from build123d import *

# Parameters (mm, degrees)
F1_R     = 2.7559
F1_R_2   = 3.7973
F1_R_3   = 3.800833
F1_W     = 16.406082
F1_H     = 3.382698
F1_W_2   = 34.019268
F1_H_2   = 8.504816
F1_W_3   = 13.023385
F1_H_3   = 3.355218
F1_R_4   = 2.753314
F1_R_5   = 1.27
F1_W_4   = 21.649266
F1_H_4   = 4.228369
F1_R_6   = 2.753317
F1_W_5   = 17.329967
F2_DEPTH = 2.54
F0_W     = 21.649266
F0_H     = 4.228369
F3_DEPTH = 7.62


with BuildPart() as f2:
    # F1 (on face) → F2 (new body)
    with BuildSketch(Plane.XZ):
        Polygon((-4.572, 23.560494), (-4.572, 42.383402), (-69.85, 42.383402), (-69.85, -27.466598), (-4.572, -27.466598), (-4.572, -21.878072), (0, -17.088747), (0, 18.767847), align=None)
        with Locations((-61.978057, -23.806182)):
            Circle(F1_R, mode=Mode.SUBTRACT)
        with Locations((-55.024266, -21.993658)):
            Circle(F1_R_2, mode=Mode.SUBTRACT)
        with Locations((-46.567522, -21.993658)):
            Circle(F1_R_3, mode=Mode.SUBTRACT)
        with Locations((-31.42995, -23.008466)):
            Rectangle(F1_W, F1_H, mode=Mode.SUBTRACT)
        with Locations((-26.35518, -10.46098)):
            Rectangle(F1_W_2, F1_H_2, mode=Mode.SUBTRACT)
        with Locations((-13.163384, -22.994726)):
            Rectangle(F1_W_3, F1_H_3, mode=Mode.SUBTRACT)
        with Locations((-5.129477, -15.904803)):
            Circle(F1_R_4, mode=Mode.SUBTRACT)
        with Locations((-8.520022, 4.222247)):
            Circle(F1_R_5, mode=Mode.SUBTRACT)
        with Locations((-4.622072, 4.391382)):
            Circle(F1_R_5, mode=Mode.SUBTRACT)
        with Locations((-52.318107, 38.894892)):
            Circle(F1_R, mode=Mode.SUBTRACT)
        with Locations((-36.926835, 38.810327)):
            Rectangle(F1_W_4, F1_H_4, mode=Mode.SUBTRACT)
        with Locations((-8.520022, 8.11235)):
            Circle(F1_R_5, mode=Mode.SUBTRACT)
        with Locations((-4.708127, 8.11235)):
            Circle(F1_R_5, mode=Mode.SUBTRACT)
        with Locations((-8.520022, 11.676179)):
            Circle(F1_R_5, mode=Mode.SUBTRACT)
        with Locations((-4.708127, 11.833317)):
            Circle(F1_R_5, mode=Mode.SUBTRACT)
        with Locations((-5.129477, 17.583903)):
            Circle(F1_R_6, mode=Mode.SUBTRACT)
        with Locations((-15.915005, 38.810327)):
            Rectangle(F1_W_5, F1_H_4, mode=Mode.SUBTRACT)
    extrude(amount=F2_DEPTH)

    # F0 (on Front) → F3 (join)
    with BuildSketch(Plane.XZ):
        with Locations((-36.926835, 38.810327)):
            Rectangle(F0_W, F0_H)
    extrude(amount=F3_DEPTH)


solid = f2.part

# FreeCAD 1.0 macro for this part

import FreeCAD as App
import Part
import Sketcher
from FreeCAD import Vector
Q = App.Units.Quantity

doc = App.newDocument("Part")
params = doc.addObject("Spreadsheet::Sheet", "Params")
for row, (alias, value) in enumerate([
    ("sketch1_diameter", "0.1 in"),
    ("sketch1_diameter2", "0.217 in"),
    ("sketch1_diameter3", "0.299 in"),
    ("sketch1_width", "2.57 in"),
    ("sketch1_height", "2.75 in"),
    ("pad1_length", "0.1 in"),
    ("pad2_length", "0.3 in"),
], start=1):
    params.set(f"A{row}", alias)
    params.set(f"B{row}", "=" + value)
    params.setAlias(f"B{row}", alias)

body = doc.addObject("PartDesign::Body", "Body")

sketch1 = body.newObject("Sketcher::SketchObject", "Sketch")
sketch1.AttachmentSupport = (doc.getObject("XZ_Plane"), [""])
sketch1.MapMode = "FlatFace"
sketch1.addGeometry(Part.LineSegment(Vector(-4.6, 23.6, 0), Vector(-4.6, 42.4, 0)), False)
sketch1.addGeometry(Part.LineSegment(Vector(-4.6, 42.4, 0), Vector(-69.8, 42.4, 0)), False)
sketch1.addGeometry(Part.LineSegment(Vector(-69.8, 42.4, 0), Vector(-69.8, -27.5, 0)), False)
sketch1.addGeometry(Part.LineSegment(Vector(-69.8, -27.5, 0), Vector(-4.6, -27.5, 0)), False)
sketch1.addGeometry(Part.LineSegment(Vector(-4.6, -27.5, 0), Vector(-4.6, -21.9, 0)), False)
sketch1.addGeometry(Part.LineSegment(Vector(-4.6, -21.9, 0), Vector(0, -17.1, 0)), False)
sketch1.addGeometry(Part.LineSegment(Vector(0, -17.1, 0), Vector(0, 18.8, 0)), False)
sketch1.addGeometry(Part.LineSegment(Vector(0, 18.8, 0), Vector(-4.6, 23.6, 0)), False)
sketch1.addGeometry(Part.Circle(Vector(-62, -23.8, 0), Vector(0, 0, 1), 2.8), False)
sketch1.addGeometry(Part.Circle(Vector(-55, -22, 0), Vector(0, 0, 1), 3.8), False)
sketch1.addGeometry(Part.Circle(Vector(-46.6, -22, 0), Vector(0, 0, 1), 3.8), False)
sketch1.addGeometry(Part.LineSegment(Vector(-23.2, -24.7, 0), Vector(-39.6, -24.7, 0)), False)
sketch1.addGeometry(Part.LineSegment(Vector(-39.6, -24.7, 0), Vector(-39.6, -21.3, 0)), False)
sketch1.addGeometry(Part.LineSegment(Vector(-39.6, -21.3, 0), Vector(-23.2, -21.3, 0)), False)
sketch1.addGeometry(Part.LineSegment(Vector(-23.2, -21.3, 0), Vector(-23.2, -24.7, 0)), False)
sketch1.addGeometry(Part.LineSegment(Vector(-9.3, -14.7, 0), Vector(-43.4, -14.7, 0)), False)
sketch1.addGeometry(Part.LineSegment(Vector(-43.4, -14.7, 0), Vector(-43.4, -6.2, 0)), False)
sketch1.addGeometry(Part.LineSegment(Vector(-43.4, -6.2, 0), Vector(-9.3, -6.2, 0)), False)
sketch1.addGeometry(Part.LineSegment(Vector(-9.3, -6.2, 0), Vector(-9.3, -14.7, 0)), False)
sketch1.addGeometry(Part.LineSegment(Vector(-6.7, -24.7, 0), Vector(-19.7, -24.7, 0)), False)
sketch1.addGeometry(Part.LineSegment(Vector(-19.7, -24.7, 0), Vector(-19.7, -21.3, 0)), False)
sketch1.addGeometry(Part.LineSegment(Vector(-19.7, -21.3, 0), Vector(-6.7, -21.3, 0)), False)
sketch1.addGeometry(Part.LineSegment(Vector(-6.7, -21.3, 0), Vector(-6.7, -24.7, 0)), False)
sketch1.addGeometry(Part.Circle(Vector(-5.1, -15.9, 0), Vector(0, 0, 1), 2.8), False)
sketch1.addGeometry(Part.Circle(Vector(-8.5, 4.2, 0), Vector(0, 0, 1), 1.3), False)
sketch1.addGeometry(Part.Circle(Vector(-4.6, 4.4, 0), Vector(0, 0, 1), 1.3), False)
sketch1.addGeometry(Part.Circle(Vector(-52.3, 38.9, 0), Vector(0, 0, 1), 2.8), False)
sketch1.addGeometry(Part.LineSegment(Vector(-26.1, 36.7, 0), Vector(-47.8, 36.7, 0)), False)
sketch1.addGeometry(Part.LineSegment(Vector(-47.8, 36.7, 0), Vector(-47.8, 40.9, 0)), False)
sketch1.addGeometry(Part.LineSegment(Vector(-47.8, 40.9, 0), Vector(-26.1, 40.9, 0)), False)
sketch1.addGeometry(Part.LineSegment(Vector(-26.1, 40.9, 0), Vector(-26.1, 36.7, 0)), False)
sketch1.addGeometry(Part.Circle(Vector(-8.5, 8.1, 0), Vector(0, 0, 1), 1.3), False)
sketch1.addGeometry(Part.Circle(Vector(-8.5, 11.7, 0), Vector(0, 0, 1), 1.3), False)
sketch1.addGeometry(Part.Circle(Vector(-4.7, 8.1, 0), Vector(0, 0, 1), 1.3), False)
sketch1.addGeometry(Part.Circle(Vector(-4.7, 11.8, 0), Vector(0, 0, 1), 1.3), False)
sketch1.addGeometry(Part.Circle(Vector(-5.1, 17.6, 0), Vector(0, 0, 1), 2.8), False)
sketch1.addGeometry(Part.LineSegment(Vector(-7.3, 36.7, 0), Vector(-24.6, 36.7, 0)), False)
sketch1.addGeometry(Part.LineSegment(Vector(-24.6, 36.7, 0), Vector(-24.6, 40.9, 0)), False)
sketch1.addGeometry(Part.LineSegment(Vector(-24.6, 40.9, 0), Vector(-7.3, 40.9, 0)), False)
sketch1.addGeometry(Part.LineSegment(Vector(-7.3, 40.9, 0), Vector(-7.3, 36.7, 0)), False)
sketch1.addConstraint(Sketcher.Constraint("Coincident", 0, 2, 1, 1))
sketch1.addConstraint(Sketcher.Constraint("Coincident", 1, 2, 2, 1))
sketch1.addConstraint(Sketcher.Constraint("Coincident", 2, 2, 3, 1))
sketch1.addConstraint(Sketcher.Constraint("Coincident", 3, 2, 4, 1))
sketch1.addConstraint(Sketcher.Constraint("Coincident", 4, 2, 5, 1))
sketch1.addConstraint(Sketcher.Constraint("Coincident", 5, 2, 6, 1))
sketch1.addConstraint(Sketcher.Constraint("Coincident", 6, 2, 7, 1))
sketch1.addConstraint(Sketcher.Constraint("Coincident", 7, 2, 0, 1))
sketch1.addConstraint(Sketcher.Constraint("Coincident", 11, 2, 12, 1))
sketch1.addConstraint(Sketcher.Constraint("Coincident", 12, 2, 13, 1))
sketch1.addConstraint(Sketcher.Constraint("Coincident", 13, 2, 14, 1))
sketch1.addConstraint(Sketcher.Constraint("Coincident", 14, 2, 11, 1))
sketch1.addConstraint(Sketcher.Constraint("Coincident", 15, 2, 16, 1))
sketch1.addConstraint(Sketcher.Constraint("Coincident", 16, 2, 17, 1))
sketch1.addConstraint(Sketcher.Constraint("Coincident", 17, 2, 18, 1))
sketch1.addConstraint(Sketcher.Constraint("Coincident", 18, 2, 15, 1))
sketch1.addConstraint(Sketcher.Constraint("Coincident", 19, 2, 20, 1))
sketch1.addConstraint(Sketcher.Constraint("Coincident", 20, 2, 21, 1))
sketch1.addConstraint(Sketcher.Constraint("Coincident", 21, 2, 22, 1))
sketch1.addConstraint(Sketcher.Constraint("Coincident", 22, 2, 19, 1))
sketch1.addConstraint(Sketcher.Constraint("Coincident", 27, 2, 28, 1))
sketch1.addConstraint(Sketcher.Constraint("Coincident", 28, 2, 29, 1))
sketch1.addConstraint(Sketcher.Constraint("Coincident", 29, 2, 30, 1))
sketch1.addConstraint(Sketcher.Constraint("Coincident", 30, 2, 27, 1))
sketch1.addConstraint(Sketcher.Constraint("Coincident", 36, 2, 37, 1))
sketch1.addConstraint(Sketcher.Constraint("Coincident", 37, 2, 38, 1))
sketch1.addConstraint(Sketcher.Constraint("Coincident", 38, 2, 39, 1))
sketch1.addConstraint(Sketcher.Constraint("Coincident", 39, 2, 36, 1))
sketch1.addConstraint(Sketcher.Constraint("Vertical", 0))
sketch1.addConstraint(Sketcher.Constraint("Horizontal", 1))
sketch1.addConstraint(Sketcher.Constraint("Vertical", 2))
sketch1.addConstraint(Sketcher.Constraint("Horizontal", 3))
sketch1.addConstraint(Sketcher.Constraint("Vertical", 4))
sketch1.addConstraint(Sketcher.Constraint("Vertical", 6))
sketch1.addConstraint(Sketcher.Constraint("Horizontal", 11))
sketch1.addConstraint(Sketcher.Constraint("Vertical", 12))
sketch1.addConstraint(Sketcher.Constraint("Horizontal", 13))
sketch1.addConstraint(Sketcher.Constraint("Vertical", 14))
sketch1.addConstraint(Sketcher.Constraint("Horizontal", 15))
sketch1.addConstraint(Sketcher.Constraint("Vertical", 16))
sketch1.addConstraint(Sketcher.Constraint("Horizontal", 17))
sketch1.addConstraint(Sketcher.Constraint("Vertical", 18))
sketch1.addConstraint(Sketcher.Constraint("Horizontal", 19))
sketch1.addConstraint(Sketcher.Constraint("Vertical", 20))
sketch1.addConstraint(Sketcher.Constraint("Horizontal", 21))
sketch1.addConstraint(Sketcher.Constraint("Vertical", 22))
sketch1.addConstraint(Sketcher.Constraint("Horizontal", 27))
sketch1.addConstraint(Sketcher.Constraint("Vertical", 28))
sketch1.addConstraint(Sketcher.Constraint("Horizontal", 29))
sketch1.addConstraint(Sketcher.Constraint("Vertical", 30))
sketch1.addConstraint(Sketcher.Constraint("Horizontal", 36))
sketch1.addConstraint(Sketcher.Constraint("Vertical", 37))
sketch1.addConstraint(Sketcher.Constraint("Horizontal", 38))
sketch1.addConstraint(Sketcher.Constraint("Vertical", 39))
sketch1.addConstraint(Sketcher.Constraint("Equal", 24, 25))
sketch1.addConstraint(Sketcher.Constraint("Equal", 8, 26))
sketch1.addConstraint(Sketcher.Constraint("Equal", 25, 31))
sketch1.addConstraint(Sketcher.Constraint("Equal", 31, 32))
sketch1.addConstraint(Sketcher.Constraint("Equal", 32, 33))
sketch1.addConstraint(Sketcher.Constraint("Equal", 33, 34))
sketch1.addConstraint(Sketcher.Constraint("PointOnObject", 5, 2, -2))
sketch1.addConstraint(Sketcher.Constraint("Horizontal", 9, 3, 10, 3))
sketch1.addConstraint(Sketcher.Constraint("Horizontal", 31, 3, 33, 3))
sketch1.addConstraint(Sketcher.Constraint("Horizontal", 13, 2, 20, 2))
sketch1.addConstraint(Sketcher.Constraint("Horizontal", 30, 2, 36, 2))
sketch1.addConstraint(Sketcher.Constraint("Horizontal", 29, 2, 37, 2))
sketch1.addConstraint(Sketcher.Constraint("Vertical", 24, 3, 31, 3))
sketch1.addConstraint(Sketcher.Constraint("Vertical", 31, 3, 32, 3))
sketch1.addConstraint(Sketcher.Constraint("Vertical", 33, 3, 34, 3))
sketch1.addConstraint(Sketcher.Constraint("Vertical", 23, 3, 35, 3))
sketch1.addConstraint(Sketcher.Constraint("Vertical", 0, 2, 3, 2))
sketch1.addConstraint(Sketcher.Constraint("Diameter", 24, Q("0.1 in")))
sketch1.addConstraint(Sketcher.Constraint("Diameter", 8, Q("0.217 in")))
sketch1.addConstraint(Sketcher.Constraint("Diameter", 9, Q("0.299 in")))
sketch1.addConstraint(Sketcher.Constraint("DistanceX", 1, 2, 1, 1, Q("2.57 in")))
sketch1.addConstraint(Sketcher.Constraint("DistanceY", 2, 2, 2, 1, Q("2.75 in")))
sketch1.addConstraint(Sketcher.Constraint("DistanceX", 0, 2, -1, 1, Q("0.18 in")))
sketch1.addConstraint(Sketcher.Constraint("Diameter", 10, Q("7.601666 mm")))
sketch1.addConstraint(Sketcher.Constraint("Diameter", 23, Q("5.506628 mm")))
sketch1.addConstraint(Sketcher.Constraint("Diameter", 35, Q("5.506634 mm")))
sketch1.addConstraint(Sketcher.Constraint("DistanceY", 12, 1, 12, 2, Q("3.382698 mm")))
sketch1.addConstraint(Sketcher.Constraint("DistanceY", 34, 3, 7, 2, Q("0.4616999 in")))
sketch1.addConstraint(Sketcher.Constraint("DistanceX", 11, 2, 11, 1, Q("16.406082 mm")))
sketch1.addConstraint(Sketcher.Constraint("DistanceX", 15, 2, 15, 1, Q("34.019268 mm")))
sketch1.addConstraint(Sketcher.Constraint("DistanceY", 20, 1, 20, 2, Q("3.355218 mm")))
sketch1.addConstraint(Sketcher.Constraint("DistanceY", 28, 1, 28, 2, Q("4.228369 mm")))
sketch1.addConstraint(Sketcher.Constraint("DistanceY", -1, 1, 0, 2, Q("42.383402 mm")))
sketch1.addConstraint(Sketcher.Constraint("DistanceX", 29, 2, -1, 1, Q("26.102202 mm")))
sketch1.addConstraint(Sketcher.Constraint("DistanceX", 10, 3, 24, 3, Q("38.0475 mm")))
sketch1.addConstraint(Sketcher.Constraint("DistanceY", 35, 3, 0, 2, Q("24.799499 mm")))
sketch1.addConstraint(Sketcher.Constraint("Distance", 5, Q("6.62124 mm")))
sketch1.addConstraint(Sketcher.Constraint("DistanceX", 19, 2, 19, 1, Q("13.023385 mm")))
sketch1.addConstraint(Sketcher.Constraint("DistanceX", 27, 2, 27, 1, Q("21.649266 mm")))
sketch1.addConstraint(Sketcher.Constraint("DistanceX", 36, 2, 36, 1, Q("17.329967 mm")))
sketch1.addConstraint(Sketcher.Constraint("DistanceY", 0, 1, 0, 2, Q("18.822908 mm")))
sketch1.addConstraint(Sketcher.Constraint("DistanceY", 4, 1, 4, 2, Q("5.588526 mm")))
sketch1.addConstraint(Sketcher.Constraint("DistanceY", 6, 1, 6, 2, Q("35.856594 mm")))
sketch1.addConstraint(Sketcher.Constraint("DistanceY", 16, 1, 16, 2, Q("8.504816 mm")))
sketch1.addConstraint(Sketcher.Constraint("DistanceY", 8, 3, -1, 1, Q("23.806182 mm")))
sketch1.addConstraint(Sketcher.Constraint("DistanceY", 9, 3, -1, 1, Q("21.993658 mm")))
sketch1.addConstraint(Sketcher.Constraint("DistanceX", 10, 3, -1, 1, Q("46.567522 mm")))
sketch1.addConstraint(Sketcher.Constraint("DistanceY", -1, 1, 31, 3, Q("8.11235 mm")))
sketch1.addConstraint(Sketcher.Constraint("DistanceY", -1, 1, 32, 3, Q("11.676179 mm")))
sketch1.addConstraint(Sketcher.Constraint("DistanceX", 11, 2, -1, 1, Q("39.632991 mm")))
sketch1.addConstraint(Sketcher.Constraint("DistanceX", 21, 2, -1, 1, Q("6.651692 mm")))
sketch1.addConstraint(Sketcher.Constraint("DistanceY", -1, 1, 28, 2, Q("40.924512 mm")))
sketch1.addConstraint(Sketcher.Constraint("DistanceX", 36, 2, -1, 1, Q("24.579988 mm")))
sketch1.addConstraint(Sketcher.Constraint("DistanceX", 8, 3, 9, 3, Q("6.953791 mm")))
sketch1.addConstraint(Sketcher.Constraint("DistanceX", 9, 3, 23, 3, Q("49.894789 mm")))
sketch1.addConstraint(Sketcher.Constraint("DistanceY", 8, 3, 23, 3, Q("7.901379 mm")))
sketch1.addConstraint(Sketcher.Constraint("DistanceY", 23, 3, 24, 3, Q("20.12705 mm")))
sketch1.addConstraint(Sketcher.Constraint("DistanceX", 24, 3, 25, 3, Q("3.89795 mm")))
sketch1.addConstraint(Sketcher.Constraint("DistanceY", 10, 3, 25, 3, Q("26.38504 mm")))
sketch1.addConstraint(Sketcher.Constraint("DistanceY", 25, 3, 26, 3, Q("34.50351 mm")))
sketch1.addConstraint(Sketcher.Constraint("DistanceX", 9, 3, 26, 3, Q("2.706159 mm")))
sketch1.addConstraint(Sketcher.Constraint("DistanceX", 23, 3, 33, 3, Q("0.42135 mm")))
sketch1.addConstraint(Sketcher.Constraint("DistanceY", 10, 3, 12, 2, Q("0.676541 mm")))
sketch1.addConstraint(Sketcher.Constraint("DistanceX", 13, 2, 23, 3, Q("18.097432 mm")))
sketch1.addConstraint(Sketcher.Constraint("DistanceY", 12, 2, 15, 2, Q("6.603729 mm")))
sketch1.addConstraint(Sketcher.Constraint("DistanceX", 9, 3, 15, 2, Q("11.659452 mm")))
sketch1.setExpression("Constraints[71]", "Params.sketch1_diameter")
sketch1.setExpression("Constraints[72]", "Params.sketch1_diameter2")
sketch1.setExpression("Constraints[73]", "Params.sketch1_diameter3")
sketch1.setExpression("Constraints[74]", "Params.sketch1_width")
sketch1.setExpression("Constraints[75]", "Params.sketch1_height")
pad1 = body.newObject("PartDesign::Pad", "Pad")
pad1.Profile = sketch1
pad1.setExpression("Length", "Params.pad1_length")

sketch2 = body.newObject("Sketcher::SketchObject", "Sketch001")
sketch2.AttachmentSupport = (doc.getObject("XZ_Plane"), [""])
sketch2.MapMode = "FlatFace"
sketch2.addGeometry(Part.LineSegment(Vector(-47.8, 40.9, 0), Vector(-47.8, 36.7, 0)), False)
sketch2.addGeometry(Part.LineSegment(Vector(-47.8, 36.7, 0), Vector(-26.1, 36.7, 0)), False)
sketch2.addGeometry(Part.LineSegment(Vector(-26.1, 36.7, 0), Vector(-26.1, 40.9, 0)), False)
sketch2.addGeometry(Part.LineSegment(Vector(-26.1, 40.9, 0), Vector(-47.8, 40.9, 0)), False)
sketch2.addConstraint(Sketcher.Constraint("Coincident", 0, 2, 1, 1))
sketch2.addConstraint(Sketcher.Constraint("Coincident", 1, 2, 2, 1))
sketch2.addConstraint(Sketcher.Constraint("Coincident", 2, 2, 3, 1))
sketch2.addConstraint(Sketcher.Constraint("Coincident", 3, 2, 0, 1))
sketch2.addConstraint(Sketcher.Constraint("Vertical", 0))
sketch2.addConstraint(Sketcher.Constraint("Horizontal", 1))
sketch2.addConstraint(Sketcher.Constraint("Vertical", 2))
sketch2.addConstraint(Sketcher.Constraint("Horizontal", 3))
sketch2.addConstraint(Sketcher.Constraint("DistanceY", 0, 2, 0, 1, Q("4.228369 mm")))
sketch2.addConstraint(Sketcher.Constraint("DistanceX", 1, 2, -1, 1, Q("26.102202 mm")))
sketch2.addConstraint(Sketcher.Constraint("DistanceX", 1, 1, 1, 2, Q("21.649266 mm")))
sketch2.addConstraint(Sketcher.Constraint("DistanceY", -1, 1, 2, 2, Q("40.924512 mm")))
pad2 = body.newObject("PartDesign::Pad", "Pad001")
pad2.Profile = sketch2
pad2.setExpression("Length", "Params.pad2_length")

doc.recompute()
